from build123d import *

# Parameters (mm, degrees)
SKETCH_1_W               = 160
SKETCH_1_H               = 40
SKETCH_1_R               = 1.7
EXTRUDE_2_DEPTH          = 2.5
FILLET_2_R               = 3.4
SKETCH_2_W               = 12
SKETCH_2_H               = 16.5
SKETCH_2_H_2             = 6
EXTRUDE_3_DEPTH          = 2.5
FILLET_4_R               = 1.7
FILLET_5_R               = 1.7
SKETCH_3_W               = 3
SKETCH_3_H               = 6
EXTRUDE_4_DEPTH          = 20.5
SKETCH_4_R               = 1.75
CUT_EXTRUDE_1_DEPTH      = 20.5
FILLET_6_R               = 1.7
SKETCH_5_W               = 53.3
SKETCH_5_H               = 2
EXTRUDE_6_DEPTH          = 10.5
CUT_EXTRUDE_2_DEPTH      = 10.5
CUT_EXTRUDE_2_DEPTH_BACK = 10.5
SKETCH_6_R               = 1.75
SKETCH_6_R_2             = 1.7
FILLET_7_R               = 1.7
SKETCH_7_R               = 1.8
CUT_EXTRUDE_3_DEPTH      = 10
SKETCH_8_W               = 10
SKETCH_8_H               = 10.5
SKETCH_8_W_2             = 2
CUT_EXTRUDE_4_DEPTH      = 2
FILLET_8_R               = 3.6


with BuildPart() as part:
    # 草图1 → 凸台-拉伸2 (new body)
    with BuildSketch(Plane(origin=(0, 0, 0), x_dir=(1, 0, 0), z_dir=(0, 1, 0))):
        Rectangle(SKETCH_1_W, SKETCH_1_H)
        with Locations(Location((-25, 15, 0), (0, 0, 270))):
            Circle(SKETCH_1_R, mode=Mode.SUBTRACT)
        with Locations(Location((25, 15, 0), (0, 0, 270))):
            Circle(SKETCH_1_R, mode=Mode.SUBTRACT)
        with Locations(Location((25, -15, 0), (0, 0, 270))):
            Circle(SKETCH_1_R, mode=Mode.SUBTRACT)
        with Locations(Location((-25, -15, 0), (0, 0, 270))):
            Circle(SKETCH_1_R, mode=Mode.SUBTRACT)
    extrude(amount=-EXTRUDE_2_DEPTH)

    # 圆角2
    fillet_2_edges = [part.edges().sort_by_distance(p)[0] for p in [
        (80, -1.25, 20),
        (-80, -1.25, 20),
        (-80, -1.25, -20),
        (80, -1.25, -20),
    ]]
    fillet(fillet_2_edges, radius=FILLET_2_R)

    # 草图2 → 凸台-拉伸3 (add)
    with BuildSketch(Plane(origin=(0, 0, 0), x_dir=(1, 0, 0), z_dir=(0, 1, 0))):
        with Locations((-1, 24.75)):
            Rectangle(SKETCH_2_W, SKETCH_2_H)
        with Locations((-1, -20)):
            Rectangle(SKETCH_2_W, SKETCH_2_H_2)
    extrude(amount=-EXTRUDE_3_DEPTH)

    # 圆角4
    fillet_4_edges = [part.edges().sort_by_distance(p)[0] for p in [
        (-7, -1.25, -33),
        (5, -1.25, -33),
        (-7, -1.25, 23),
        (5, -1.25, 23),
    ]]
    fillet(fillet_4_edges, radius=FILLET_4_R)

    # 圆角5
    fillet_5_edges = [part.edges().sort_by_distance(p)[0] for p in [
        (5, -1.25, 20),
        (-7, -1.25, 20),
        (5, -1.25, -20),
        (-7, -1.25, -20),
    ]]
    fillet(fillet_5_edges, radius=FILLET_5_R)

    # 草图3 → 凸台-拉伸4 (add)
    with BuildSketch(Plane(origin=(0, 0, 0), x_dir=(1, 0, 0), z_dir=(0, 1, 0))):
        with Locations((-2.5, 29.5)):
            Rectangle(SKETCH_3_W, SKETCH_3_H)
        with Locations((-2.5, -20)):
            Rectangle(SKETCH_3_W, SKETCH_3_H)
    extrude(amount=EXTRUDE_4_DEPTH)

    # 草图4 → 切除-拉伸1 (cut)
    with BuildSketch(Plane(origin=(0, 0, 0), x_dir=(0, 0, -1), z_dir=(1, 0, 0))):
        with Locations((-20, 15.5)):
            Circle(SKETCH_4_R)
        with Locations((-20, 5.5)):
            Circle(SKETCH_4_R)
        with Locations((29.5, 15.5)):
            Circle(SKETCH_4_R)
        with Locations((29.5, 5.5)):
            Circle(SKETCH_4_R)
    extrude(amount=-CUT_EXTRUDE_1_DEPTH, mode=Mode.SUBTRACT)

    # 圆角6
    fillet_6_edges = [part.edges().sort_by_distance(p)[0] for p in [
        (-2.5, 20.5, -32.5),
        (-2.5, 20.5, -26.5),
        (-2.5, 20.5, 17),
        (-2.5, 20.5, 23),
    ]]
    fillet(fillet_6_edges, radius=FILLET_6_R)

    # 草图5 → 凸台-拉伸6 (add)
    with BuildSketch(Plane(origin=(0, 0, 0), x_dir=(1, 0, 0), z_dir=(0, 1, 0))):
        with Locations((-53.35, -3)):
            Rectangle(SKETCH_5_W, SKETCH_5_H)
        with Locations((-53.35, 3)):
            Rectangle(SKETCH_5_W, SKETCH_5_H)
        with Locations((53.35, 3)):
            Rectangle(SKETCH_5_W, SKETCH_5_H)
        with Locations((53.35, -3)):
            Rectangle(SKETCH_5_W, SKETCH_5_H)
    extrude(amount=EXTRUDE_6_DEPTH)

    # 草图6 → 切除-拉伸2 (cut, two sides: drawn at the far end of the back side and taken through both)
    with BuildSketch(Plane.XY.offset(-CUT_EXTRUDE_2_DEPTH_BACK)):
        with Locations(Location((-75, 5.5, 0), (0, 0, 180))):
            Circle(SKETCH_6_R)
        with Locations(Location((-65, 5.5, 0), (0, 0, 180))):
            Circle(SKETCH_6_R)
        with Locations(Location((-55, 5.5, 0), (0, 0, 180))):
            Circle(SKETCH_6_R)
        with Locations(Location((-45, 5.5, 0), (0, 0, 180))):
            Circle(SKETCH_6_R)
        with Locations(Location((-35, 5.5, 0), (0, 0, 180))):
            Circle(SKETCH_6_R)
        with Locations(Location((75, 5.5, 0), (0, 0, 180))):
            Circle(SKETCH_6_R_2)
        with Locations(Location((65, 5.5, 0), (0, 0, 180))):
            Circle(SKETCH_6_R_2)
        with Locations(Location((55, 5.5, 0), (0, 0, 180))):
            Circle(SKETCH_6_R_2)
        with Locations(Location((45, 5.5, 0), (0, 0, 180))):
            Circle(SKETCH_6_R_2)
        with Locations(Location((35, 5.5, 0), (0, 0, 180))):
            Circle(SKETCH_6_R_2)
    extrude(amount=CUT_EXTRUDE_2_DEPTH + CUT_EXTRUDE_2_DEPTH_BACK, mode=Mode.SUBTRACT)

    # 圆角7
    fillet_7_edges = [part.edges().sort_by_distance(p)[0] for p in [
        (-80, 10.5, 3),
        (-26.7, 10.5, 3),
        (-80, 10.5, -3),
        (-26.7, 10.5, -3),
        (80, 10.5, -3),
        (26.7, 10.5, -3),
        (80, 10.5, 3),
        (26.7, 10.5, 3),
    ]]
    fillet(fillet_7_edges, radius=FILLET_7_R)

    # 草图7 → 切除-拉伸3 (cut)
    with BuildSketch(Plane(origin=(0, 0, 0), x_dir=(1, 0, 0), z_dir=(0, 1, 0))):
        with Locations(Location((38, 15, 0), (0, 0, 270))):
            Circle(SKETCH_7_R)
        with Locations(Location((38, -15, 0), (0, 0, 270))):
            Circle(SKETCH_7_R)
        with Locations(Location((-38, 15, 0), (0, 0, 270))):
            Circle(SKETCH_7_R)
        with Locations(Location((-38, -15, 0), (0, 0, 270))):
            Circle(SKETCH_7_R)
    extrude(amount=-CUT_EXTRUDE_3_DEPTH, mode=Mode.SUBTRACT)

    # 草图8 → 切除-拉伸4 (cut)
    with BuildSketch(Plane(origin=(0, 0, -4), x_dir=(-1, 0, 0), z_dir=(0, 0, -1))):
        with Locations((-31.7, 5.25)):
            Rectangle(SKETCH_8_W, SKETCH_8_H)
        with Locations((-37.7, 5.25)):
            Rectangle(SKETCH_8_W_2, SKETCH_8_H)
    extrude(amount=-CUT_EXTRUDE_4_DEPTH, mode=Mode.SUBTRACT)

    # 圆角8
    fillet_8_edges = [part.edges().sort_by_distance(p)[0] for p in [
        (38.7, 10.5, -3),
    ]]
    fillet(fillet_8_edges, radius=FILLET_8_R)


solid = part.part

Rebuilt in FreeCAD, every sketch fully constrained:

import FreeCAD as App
import Part
import Sketcher
from FreeCAD import Vector
Q = App.Units.Quantity


def edges_at(feature, points):
    """Names of the edges that pass closest to the given points."""
    edges = feature.Shape.Edges
    near = lambda p: min(range(len(edges)), key=lambda i: edges[i].distToShape(Part.Vertex(*p))[0])
    return sorted({f"Edge{near(p) + 1}" for p in points})


def add_polygon(sketch, points):
    """Adds a closed chain of lines whose ends are joined by coincident constraints."""
    first, n = sketch.GeometryCount, len(points)
    for a, b in zip(points, points[1:] + points[:1]):
        sketch.addGeometry(Part.LineSegment(App.Vector(*a, 0), App.Vector(*b, 0)), False)
    for i in range(n):
        sketch.addConstraint(Sketcher.Constraint("Coincident", first + i, 2, first + (i + 1) % n, 1))

doc = App.newDocument("Part")
body = doc.addObject("PartDesign::Body", "Body")

# Sketch on XZ plane
sketch1 = body.newObject("Sketcher::SketchObject", "Sketch")
sketch1.AttachmentSupport = (doc.getObject("XZ_Plane"), [""])
sketch1.MapMode = "FlatFace"
add_polygon(sketch1, [(-80, -20), (-80, 20), (80, 20), (80, -20)])  # lines 0-3
sketch1.addGeometry(Part.Circle(Vector(-25, 15, 0), Vector(0, 0, 1), 1.7), False)  # 4
sketch1.addGeometry(Part.Circle(Vector(25, 15, 0), Vector(0, 0, 1), 1.7), False)  # 5
sketch1.addGeometry(Part.Circle(Vector(-25, -15, 0), Vector(0, 0, 1), 1.7), False)  # 6
sketch1.addGeometry(Part.Circle(Vector(25, -15, 0), Vector(0, 0, 1), 1.7), False)  # 7
sketch1.addConstraint([
    Sketcher.Constraint("Vertical", 0),
    Sketcher.Constraint("Horizontal", 1),
    Sketcher.Constraint("Vertical", 2),
    Sketcher.Constraint("Horizontal", 3),
    Sketcher.Constraint("Equal", 4, 5),
    Sketcher.Constraint("Equal", 5, 6),
    Sketcher.Constraint("Equal", 6, 7),
    Sketcher.Constraint("Symmetric", 5, 3, 6, 3, -1, 1),
    Sketcher.Constraint("Symmetric", 4, 3, 7, 3, -1, 1),
    Sketcher.Constraint("Symmetric", 0, 2, 2, 2, -1, 1),
    Sketcher.Constraint("Symmetric", 4, 3, 5, 3, -2),
    Sketcher.Constraint("Diameter", 4, Q("3.4 mm")),
    Sketcher.Constraint("DistanceX", 1, 1, 1, 2, Q("160 mm")),
    Sketcher.Constraint("DistanceY", 0, 1, 0, 2, Q("40 mm")),
    Sketcher.Constraint("DistanceX", 4, 3, -1, 1, Q("25 mm")),
    Sketcher.Constraint("DistanceY", -1, 1, 4, 3, Q("15 mm")),
])
pad1 = body.newObject("PartDesign::Pad", "Pad")
pad1.Profile = sketch1
pad1.Length = 2.5
doc.recompute()

fillet = body.newObject("PartDesign::Fillet", "Fillet")
fillet.Base = (pad1, edges_at(pad1, [
    (80, -1.25, 20),
    (-80, -1.25, 20),
    (-80, -1.25, -20),
    (80, -1.25, -20),
]))
fillet.Radius = 3.4

# Sketch on XZ plane
sketch2 = body.newObject("Sketcher::SketchObject", "Sketch001")
sketch2.AttachmentSupport = (doc.getObject("XZ_Plane"), [""])
sketch2.MapMode = "FlatFace"
add_polygon(sketch2, [(-7, -33), (-7, -16.5), (5, -16.5), (5, -33)])  # lines 0-3
add_polygon(sketch2, [(-7, 17), (-7, 23), (5, 23), (5, 17)])  # lines 4-7
sketch2.addConstraint([
    Sketcher.Constraint("Vertical", 0),
    Sketcher.Constraint("Horizontal", 1),
    Sketcher.Constraint("Vertical", 2),
    Sketcher.Constraint("Horizontal", 3),
    Sketcher.Constraint("Vertical", 4),
    Sketcher.Constraint("Horizontal", 5),
    Sketcher.Constraint("Vertical", 6),
    Sketcher.Constraint("Horizontal", 7),
    Sketcher.Constraint("Vertical", 3, 2, 4, 2),
    Sketcher.Constraint("Vertical", 2, 2, 5, 2),
    Sketcher.Constraint("DistanceX", 1, 1, 1, 2, Q("12 mm")),
    Sketcher.Constraint("DistanceY", 4, 1, 4, 2, Q("6 mm")),
    Sketcher.Constraint("DistanceY", 0, 1, 0, 2, Q("16.5 mm")),
    Sketcher.Constraint("DistanceX", 0, 2, -1, 1, Q("7 mm")),
    Sketcher.Constraint("DistanceY", 2, 2, -1, 1, Q("33 mm")),
    Sketcher.Constraint("DistanceY", -1, 1, 4, 2, Q("23 mm")),
])
pad2 = body.newObject("PartDesign::Pad", "Pad001")
pad2.Profile = sketch2
pad2.Length = 2.5
doc.recompute()

fillet2 = body.newObject("PartDesign::Fillet", "Fillet001")
fillet2.Base = (pad2, edges_at(pad2, [
    (-7, -1.25, -33),
    (5, -1.25, -33),
    (-7, -1.25, 23),
    (5, -1.25, 23),
]))
fillet2.Radius = 1.7
doc.recompute()

fillet3 = body.newObject("PartDesign::Fillet", "Fillet002")
fillet3.Base = (fillet2, edges_at(fillet2, [
    (5, -1.25, 20),
    (-7, -1.25, 20),
    (5, -1.25, -20),
    (-7, -1.25, -20),
]))
fillet3.Radius = 1.7

# Sketch on XZ plane
sketch3 = body.newObject("Sketcher::SketchObject", "Sketch002")
sketch3.AttachmentSupport = (doc.getObject("XZ_Plane"), [""])
sketch3.MapMode = "FlatFace"
add_polygon(sketch3, [(-4, -32.5), (-4, -26.5), (-1, -26.5), (-1, -32.5)])  # lines 0-3
add_polygon(sketch3, [(-4, 17), (-4, 23), (-1, 23), (-1, 17)])  # lines 4-7
sketch3.addConstraint([
    Sketcher.Constraint("Vertical", 0),
    Sketcher.Constraint("Horizontal", 1),
    Sketcher.Constraint("Vertical", 2),
    Sketcher.Constraint("Horizontal", 3),
    Sketcher.Constraint("Vertical", 4),
    Sketcher.Constraint("Horizontal", 5),
    Sketcher.Constraint("Vertical", 6),
    Sketcher.Constraint("Horizontal", 7),
    Sketcher.Constraint("Vertical", 3, 2, 4, 2),
    Sketcher.Constraint("Vertical", 2, 2, 5, 2),
    Sketcher.Constraint("Equal", 2, 4),
    Sketcher.Constraint("DistanceX", 1, 1, 1, 2, Q("3 mm")),
    Sketcher.Constraint("DistanceY", 0, 1, 0, 2, Q("6 mm")),
    Sketcher.Constraint("DistanceX", 0, 2, -1, 1, Q("4 mm")),
    Sketcher.Constraint("DistanceY", -1, 1, 4, 2, Q("23 mm")),
    Sketcher.Constraint("DistanceY", 0, 2, -1, 1, Q("26.5 mm")),
])
pad3 = body.newObject("PartDesign::Pad", "Pad002")
pad3.Profile = sketch3
pad3.Length = 20.5
pad3.Reversed = True

# Sketch on YZ plane
sketch4 = body.newObject("Sketcher::SketchObject", "Sketch003")
sketch4.AttachmentSupport = (doc.getObject("YZ_Plane"), [""])
sketch4.MapMode = "FlatFace"
sketch4.addGeometry([
    Part.Circle(Vector(15.5, 20, 0), Vector(0, 0, 1), 1.75),
    Part.Circle(Vector(5.5, 20, 0), Vector(0, 0, 1), 1.75),
    Part.Circle(Vector(15.5, -29.5, 0), Vector(0, 0, 1), 1.75),
    Part.Circle(Vector(5.5, -29.5, 0), Vector(0, 0, 1), 1.75),
], False)
sketch4.addConstraint([
    Sketcher.Constraint("Equal", 0, 1),
    Sketcher.Constraint("Equal", 1, 2),
    Sketcher.Constraint("Equal", 2, 3),
    Sketcher.Constraint("Horizontal", 0, 3, 1, 3),
    Sketcher.Constraint("Horizontal", 2, 3, 3, 3),
    Sketcher.Constraint("Vertical", 0, 3, 2, 3),
    Sketcher.Constraint("Vertical", 1, 3, 3, 3),
    Sketcher.Constraint("Diameter", 0, Q("3.5 mm")),
    Sketcher.Constraint("DistanceY", -1, 1, 0, 3, Q("20 mm")),
    Sketcher.Constraint("DistanceX", 1, 3, 0, 3, Q("10 mm")),
    Sketcher.Constraint("DistanceX", -1, 1, 0, 3, Q("15.5 mm")),
    Sketcher.Constraint("DistanceY", 2, 3, -1, 1, Q("29.5 mm")),
])
pocket1 = body.newObject("PartDesign::Pocket", "Pocket")
pocket1.Profile = sketch4
pocket1.Length = 20.5
doc.recompute()

fillet4 = body.newObject("PartDesign::Fillet", "Fillet003")
fillet4.Base = (pocket1, edges_at(pocket1, [
    (-2.5, 20.5, -32.5),
    (-2.5, 20.5, -26.5),
    (-2.5, 20.5, 17),
    (-2.5, 20.5, 23),
]))
fillet4.Radius = 1.7

# Sketch on XZ plane
sketch5 = body.newObject("Sketcher::SketchObject", "Sketch004")
sketch5.AttachmentSupport = (doc.getObject("XZ_Plane"), [""])
sketch5.MapMode = "FlatFace"
add_polygon(sketch5, [(-80, 2), (-80, 4), (-26.7, 4), (-26.7, 2)])  # lines 0-3
add_polygon(sketch5, [(-80, -4), (-80, -2), (-26.7, -2), (-26.7, -4)])  # lines 4-7
add_polygon(sketch5, [(26.7, -4), (26.7, -2), (80, -2), (80, -4)])  # lines 8-11
add_polygon(sketch5, [(26.7, 2), (26.7, 4), (80, 4), (80, 2)])  # lines 12-15
sketch5.addConstraint([
    Sketcher.Constraint("Vertical", 0),
    Sketcher.Constraint("Horizontal", 1),
    Sketcher.Constraint("Vertical", 2),
    Sketcher.Constraint("Horizontal", 3),
    Sketcher.Constraint("Vertical", 4),
    Sketcher.Constraint("Horizontal", 5),
    Sketcher.Constraint("Vertical", 6),
    Sketcher.Constraint("Horizontal", 7),
    Sketcher.Constraint("Vertical", 8),
    Sketcher.Constraint("Horizontal", 9),
    Sketcher.Constraint("Vertical", 10),
    Sketcher.Constraint("Horizontal", 11),
    Sketcher.Constraint("Vertical", 12),
    Sketcher.Constraint("Horizontal", 13),
    Sketcher.Constraint("Vertical", 14),
    Sketcher.Constraint("Horizontal", 15),
    Sketcher.Constraint("Symmetric", 2, 2, 8, 2, -1, 1),
    Sketcher.Constraint("Symmetric", 0, 2, 10, 2, -1, 1),
    Sketcher.Constraint("Symmetric", 6, 2, 12, 2, -1, 1),
    Sketcher.Constraint("Symmetric", 4, 2, 14, 2, -1, 1),
    Sketcher.Constraint("Symmetric", 5, 2, 8, 2, -2),
    Sketcher.Constraint("Symmetric", 7, 2, 10, 2, -2),
    Sketcher.Constraint("DistanceY", 0, 1, 0, 2, Q("2 mm")),
    Sketcher.Constraint("DistanceX", 1, 1, 1, 2, Q("53.3 mm")),
    Sketcher.Constraint("DistanceX", 0, 2, -1, 1, Q("80 mm")),
    Sketcher.Constraint("DistanceY", -1, 1, 0, 2, Q("4 mm")),
])
pad4 = body.newObject("PartDesign::Pad", "Pad003")
pad4.Profile = sketch5
pad4.Length = 10.5
pad4.Reversed = True

# Sketch on XY plane
sketch6 = body.newObject("Sketcher::SketchObject", "Sketch005")
sketch6.AttachmentSupport = (doc.getObject("XY_Plane"), [""])
sketch6.MapMode = "FlatFace"
sketch6.addGeometry([
    Part.Circle(Vector(-75, 5.5, 0), Vector(0, 0, 1), 1.75),  # 0
    Part.Circle(Vector(-65, 5.5, 0), Vector(0, 0, 1), 1.75),  # 1
    Part.Circle(Vector(-55, 5.5, 0), Vector(0, 0, 1), 1.75),  # 2
    Part.Circle(Vector(-45, 5.5, 0), Vector(0, 0, 1), 1.75),  # 3
    Part.Circle(Vector(-35, 5.5, 0), Vector(0, 0, 1), 1.75),  # 4
    Part.Circle(Vector(75, 5.5, 0), Vector(0, 0, 1), 1.7),  # 5
    Part.Circle(Vector(65, 5.5, 0), Vector(0, 0, 1), 1.7),  # 6
    Part.Circle(Vector(55, 5.5, 0), Vector(0, 0, 1), 1.7),  # 7
    Part.Circle(Vector(45, 5.5, 0), Vector(0, 0, 1), 1.7),  # 8
    Part.Circle(Vector(35, 5.5, 0), Vector(0, 0, 1), 1.7),  # 9
], False)
sketch6.addConstraint([
    Sketcher.Constraint("Equal", 0, 1),
    Sketcher.Constraint("Equal", 1, 2),
    Sketcher.Constraint("Equal", 2, 3),
    Sketcher.Constraint("Equal", 3, 4),
    Sketcher.Constraint("Equal", 5, 6),
    Sketcher.Constraint("Equal", 6, 7),
    Sketcher.Constraint("Equal", 7, 8),
    Sketcher.Constraint("Equal", 8, 9),
    Sketcher.Constraint("Symmetric", 0, 3, 5, 3, -2),
    Sketcher.Constraint("Symmetric", 1, 3, 6, 3, -2),
    Sketcher.Constraint("Symmetric", 2, 3, 7, 3, -2),
    Sketcher.Constraint("Symmetric", 3, 3, 8, 3, -2),
    Sketcher.Constraint("Symmetric", 4, 3, 9, 3, -2),
    Sketcher.Constraint("Horizontal", 0, 3, 1, 3),
    Sketcher.Constraint("Horizontal", 1, 3, 2, 3),
    Sketcher.Constraint("Horizontal", 2, 3, 3, 3),
    Sketcher.Constraint("Horizontal", 3, 3, 4, 3),
    Sketcher.Constraint("Diameter", 0, Q("3.5 mm")),
    Sketcher.Constraint("Diameter", 5, Q("3.4 mm")),
    Sketcher.Constraint("DistanceX", 0, 3, -1, 1, Q("75 mm")),
    Sketcher.Constraint("DistanceX", 1, 3, -1, 1, Q("65 mm")),
    Sketcher.Constraint("DistanceX", 2, 3, -1, 1, Q("55 mm")),
    Sketcher.Constraint("DistanceX", 3, 3, -1, 1, Q("45 mm")),
    Sketcher.Constraint("DistanceX", 4, 3, -1, 1, Q("35 mm")),
    Sketcher.Constraint("DistanceY", -1, 1, 0, 3, Q("5.5 mm")),
])
pocket2 = body.newObject("PartDesign::Pocket", "Pocket001")
pocket2.Profile = sketch6
pocket2.Type = "ThroughAll"
pocket2.Midplane = True
doc.recompute()

fillet5 = body.newObject("PartDesign::Fillet", "Fillet004")
fillet5.Base = (pocket2, edges_at(pocket2, [
    (-80, 10.5, 3),
    (-26.7, 10.5, 3),
    (-80, 10.5, -3),
    (-26.7, 10.5, -3),
    (80, 10.5, -3),
    (26.7, 10.5, -3),
    (80, 10.5, 3),
    (26.7, 10.5, 3),
]))
fillet5.Radius = 1.7

# Sketch on XZ plane
sketch7 = body.newObject("Sketcher::SketchObject", "Sketch006")
sketch7.AttachmentSupport = (doc.getObject("XZ_Plane"), [""])
sketch7.MapMode = "FlatFace"
sketch7.addGeometry([
    Part.Circle(Vector(38, -15, 0), Vector(0, 0, 1), 1.8),
    Part.Circle(Vector(38, 15, 0), Vector(0, 0, 1), 1.8),
    Part.Circle(Vector(-38, -15, 0), Vector(0, 0, 1), 1.8),
    Part.Circle(Vector(-38, 15, 0), Vector(0, 0, 1), 1.8),
], False)
sketch7.addConstraint([
    Sketcher.Constraint("Equal", 0, 1),
    Sketcher.Constraint("Equal", 1, 2),
    Sketcher.Constraint("Equal", 2, 3),
    Sketcher.Constraint("Symmetric", 1, 3, 2, 3, -1, 1),
    Sketcher.Constraint("Symmetric", 0, 3, 3, 3, -1, 1),
    Sketcher.Constraint("Symmetric", 0, 3, 2, 3, -2),
    Sketcher.Constraint("Diameter", 0, Q("3.6 mm")),
    Sketcher.Constraint("DistanceX", -1, 1, 0, 3, Q("38 mm")),
    Sketcher.Constraint("DistanceY", 0, 3, -1, 1, Q("15 mm")),
])
pocket3 = body.newObject("PartDesign::Pocket", "Pocket002")
pocket3.Profile = sketch7
pocket3.Length = 10
pocket3.Reversed = True

# Sketch on XY plane
sketch8 = body.newObject("Sketcher::SketchObject", "Sketch007")
sketch8.AttachmentSupport = (doc.getObject("XY_Plane"), [""])
sketch8.MapMode = "FlatFace"
sketch8.AttachmentOffset = App.Placement(Vector(0, 0, -4), App.Rotation())
add_polygon(sketch8, [(26.7, 0), (26.7, 10.5), (38.7, 10.5), (38.7, 0)])  # lines 0-3
sketch8.addConstraint([
    Sketcher.Constraint("Vertical", 0),
    Sketcher.Constraint("Horizontal", 1),
    Sketcher.Constraint("Vertical", 2),
    Sketcher.Constraint("Horizontal", 3),
    Sketcher.Constraint("PointOnObject", 2, 2, -1),
    Sketcher.Constraint("DistanceX", 1, 1, 1, 2, Q("12 mm")),
    Sketcher.Constraint("DistanceY", 0, 1, 0, 2, Q("10.5 mm")),
    Sketcher.Constraint("DistanceX", -1, 1, 0, 2, Q("26.7 mm")),
])
pocket4 = body.newObject("PartDesign::Pocket", "Pocket003")
pocket4.Profile = sketch8
pocket4.Length = 2
pocket4.Reversed = True
doc.recompute()

fillet6 = body.newObject("PartDesign::Fillet", "Fillet005")
fillet6.Base = (pocket4, edges_at(pocket4, [(38.7, 10.5, -3)]))
fillet6.Radius = 3.6

doc.recompute()
